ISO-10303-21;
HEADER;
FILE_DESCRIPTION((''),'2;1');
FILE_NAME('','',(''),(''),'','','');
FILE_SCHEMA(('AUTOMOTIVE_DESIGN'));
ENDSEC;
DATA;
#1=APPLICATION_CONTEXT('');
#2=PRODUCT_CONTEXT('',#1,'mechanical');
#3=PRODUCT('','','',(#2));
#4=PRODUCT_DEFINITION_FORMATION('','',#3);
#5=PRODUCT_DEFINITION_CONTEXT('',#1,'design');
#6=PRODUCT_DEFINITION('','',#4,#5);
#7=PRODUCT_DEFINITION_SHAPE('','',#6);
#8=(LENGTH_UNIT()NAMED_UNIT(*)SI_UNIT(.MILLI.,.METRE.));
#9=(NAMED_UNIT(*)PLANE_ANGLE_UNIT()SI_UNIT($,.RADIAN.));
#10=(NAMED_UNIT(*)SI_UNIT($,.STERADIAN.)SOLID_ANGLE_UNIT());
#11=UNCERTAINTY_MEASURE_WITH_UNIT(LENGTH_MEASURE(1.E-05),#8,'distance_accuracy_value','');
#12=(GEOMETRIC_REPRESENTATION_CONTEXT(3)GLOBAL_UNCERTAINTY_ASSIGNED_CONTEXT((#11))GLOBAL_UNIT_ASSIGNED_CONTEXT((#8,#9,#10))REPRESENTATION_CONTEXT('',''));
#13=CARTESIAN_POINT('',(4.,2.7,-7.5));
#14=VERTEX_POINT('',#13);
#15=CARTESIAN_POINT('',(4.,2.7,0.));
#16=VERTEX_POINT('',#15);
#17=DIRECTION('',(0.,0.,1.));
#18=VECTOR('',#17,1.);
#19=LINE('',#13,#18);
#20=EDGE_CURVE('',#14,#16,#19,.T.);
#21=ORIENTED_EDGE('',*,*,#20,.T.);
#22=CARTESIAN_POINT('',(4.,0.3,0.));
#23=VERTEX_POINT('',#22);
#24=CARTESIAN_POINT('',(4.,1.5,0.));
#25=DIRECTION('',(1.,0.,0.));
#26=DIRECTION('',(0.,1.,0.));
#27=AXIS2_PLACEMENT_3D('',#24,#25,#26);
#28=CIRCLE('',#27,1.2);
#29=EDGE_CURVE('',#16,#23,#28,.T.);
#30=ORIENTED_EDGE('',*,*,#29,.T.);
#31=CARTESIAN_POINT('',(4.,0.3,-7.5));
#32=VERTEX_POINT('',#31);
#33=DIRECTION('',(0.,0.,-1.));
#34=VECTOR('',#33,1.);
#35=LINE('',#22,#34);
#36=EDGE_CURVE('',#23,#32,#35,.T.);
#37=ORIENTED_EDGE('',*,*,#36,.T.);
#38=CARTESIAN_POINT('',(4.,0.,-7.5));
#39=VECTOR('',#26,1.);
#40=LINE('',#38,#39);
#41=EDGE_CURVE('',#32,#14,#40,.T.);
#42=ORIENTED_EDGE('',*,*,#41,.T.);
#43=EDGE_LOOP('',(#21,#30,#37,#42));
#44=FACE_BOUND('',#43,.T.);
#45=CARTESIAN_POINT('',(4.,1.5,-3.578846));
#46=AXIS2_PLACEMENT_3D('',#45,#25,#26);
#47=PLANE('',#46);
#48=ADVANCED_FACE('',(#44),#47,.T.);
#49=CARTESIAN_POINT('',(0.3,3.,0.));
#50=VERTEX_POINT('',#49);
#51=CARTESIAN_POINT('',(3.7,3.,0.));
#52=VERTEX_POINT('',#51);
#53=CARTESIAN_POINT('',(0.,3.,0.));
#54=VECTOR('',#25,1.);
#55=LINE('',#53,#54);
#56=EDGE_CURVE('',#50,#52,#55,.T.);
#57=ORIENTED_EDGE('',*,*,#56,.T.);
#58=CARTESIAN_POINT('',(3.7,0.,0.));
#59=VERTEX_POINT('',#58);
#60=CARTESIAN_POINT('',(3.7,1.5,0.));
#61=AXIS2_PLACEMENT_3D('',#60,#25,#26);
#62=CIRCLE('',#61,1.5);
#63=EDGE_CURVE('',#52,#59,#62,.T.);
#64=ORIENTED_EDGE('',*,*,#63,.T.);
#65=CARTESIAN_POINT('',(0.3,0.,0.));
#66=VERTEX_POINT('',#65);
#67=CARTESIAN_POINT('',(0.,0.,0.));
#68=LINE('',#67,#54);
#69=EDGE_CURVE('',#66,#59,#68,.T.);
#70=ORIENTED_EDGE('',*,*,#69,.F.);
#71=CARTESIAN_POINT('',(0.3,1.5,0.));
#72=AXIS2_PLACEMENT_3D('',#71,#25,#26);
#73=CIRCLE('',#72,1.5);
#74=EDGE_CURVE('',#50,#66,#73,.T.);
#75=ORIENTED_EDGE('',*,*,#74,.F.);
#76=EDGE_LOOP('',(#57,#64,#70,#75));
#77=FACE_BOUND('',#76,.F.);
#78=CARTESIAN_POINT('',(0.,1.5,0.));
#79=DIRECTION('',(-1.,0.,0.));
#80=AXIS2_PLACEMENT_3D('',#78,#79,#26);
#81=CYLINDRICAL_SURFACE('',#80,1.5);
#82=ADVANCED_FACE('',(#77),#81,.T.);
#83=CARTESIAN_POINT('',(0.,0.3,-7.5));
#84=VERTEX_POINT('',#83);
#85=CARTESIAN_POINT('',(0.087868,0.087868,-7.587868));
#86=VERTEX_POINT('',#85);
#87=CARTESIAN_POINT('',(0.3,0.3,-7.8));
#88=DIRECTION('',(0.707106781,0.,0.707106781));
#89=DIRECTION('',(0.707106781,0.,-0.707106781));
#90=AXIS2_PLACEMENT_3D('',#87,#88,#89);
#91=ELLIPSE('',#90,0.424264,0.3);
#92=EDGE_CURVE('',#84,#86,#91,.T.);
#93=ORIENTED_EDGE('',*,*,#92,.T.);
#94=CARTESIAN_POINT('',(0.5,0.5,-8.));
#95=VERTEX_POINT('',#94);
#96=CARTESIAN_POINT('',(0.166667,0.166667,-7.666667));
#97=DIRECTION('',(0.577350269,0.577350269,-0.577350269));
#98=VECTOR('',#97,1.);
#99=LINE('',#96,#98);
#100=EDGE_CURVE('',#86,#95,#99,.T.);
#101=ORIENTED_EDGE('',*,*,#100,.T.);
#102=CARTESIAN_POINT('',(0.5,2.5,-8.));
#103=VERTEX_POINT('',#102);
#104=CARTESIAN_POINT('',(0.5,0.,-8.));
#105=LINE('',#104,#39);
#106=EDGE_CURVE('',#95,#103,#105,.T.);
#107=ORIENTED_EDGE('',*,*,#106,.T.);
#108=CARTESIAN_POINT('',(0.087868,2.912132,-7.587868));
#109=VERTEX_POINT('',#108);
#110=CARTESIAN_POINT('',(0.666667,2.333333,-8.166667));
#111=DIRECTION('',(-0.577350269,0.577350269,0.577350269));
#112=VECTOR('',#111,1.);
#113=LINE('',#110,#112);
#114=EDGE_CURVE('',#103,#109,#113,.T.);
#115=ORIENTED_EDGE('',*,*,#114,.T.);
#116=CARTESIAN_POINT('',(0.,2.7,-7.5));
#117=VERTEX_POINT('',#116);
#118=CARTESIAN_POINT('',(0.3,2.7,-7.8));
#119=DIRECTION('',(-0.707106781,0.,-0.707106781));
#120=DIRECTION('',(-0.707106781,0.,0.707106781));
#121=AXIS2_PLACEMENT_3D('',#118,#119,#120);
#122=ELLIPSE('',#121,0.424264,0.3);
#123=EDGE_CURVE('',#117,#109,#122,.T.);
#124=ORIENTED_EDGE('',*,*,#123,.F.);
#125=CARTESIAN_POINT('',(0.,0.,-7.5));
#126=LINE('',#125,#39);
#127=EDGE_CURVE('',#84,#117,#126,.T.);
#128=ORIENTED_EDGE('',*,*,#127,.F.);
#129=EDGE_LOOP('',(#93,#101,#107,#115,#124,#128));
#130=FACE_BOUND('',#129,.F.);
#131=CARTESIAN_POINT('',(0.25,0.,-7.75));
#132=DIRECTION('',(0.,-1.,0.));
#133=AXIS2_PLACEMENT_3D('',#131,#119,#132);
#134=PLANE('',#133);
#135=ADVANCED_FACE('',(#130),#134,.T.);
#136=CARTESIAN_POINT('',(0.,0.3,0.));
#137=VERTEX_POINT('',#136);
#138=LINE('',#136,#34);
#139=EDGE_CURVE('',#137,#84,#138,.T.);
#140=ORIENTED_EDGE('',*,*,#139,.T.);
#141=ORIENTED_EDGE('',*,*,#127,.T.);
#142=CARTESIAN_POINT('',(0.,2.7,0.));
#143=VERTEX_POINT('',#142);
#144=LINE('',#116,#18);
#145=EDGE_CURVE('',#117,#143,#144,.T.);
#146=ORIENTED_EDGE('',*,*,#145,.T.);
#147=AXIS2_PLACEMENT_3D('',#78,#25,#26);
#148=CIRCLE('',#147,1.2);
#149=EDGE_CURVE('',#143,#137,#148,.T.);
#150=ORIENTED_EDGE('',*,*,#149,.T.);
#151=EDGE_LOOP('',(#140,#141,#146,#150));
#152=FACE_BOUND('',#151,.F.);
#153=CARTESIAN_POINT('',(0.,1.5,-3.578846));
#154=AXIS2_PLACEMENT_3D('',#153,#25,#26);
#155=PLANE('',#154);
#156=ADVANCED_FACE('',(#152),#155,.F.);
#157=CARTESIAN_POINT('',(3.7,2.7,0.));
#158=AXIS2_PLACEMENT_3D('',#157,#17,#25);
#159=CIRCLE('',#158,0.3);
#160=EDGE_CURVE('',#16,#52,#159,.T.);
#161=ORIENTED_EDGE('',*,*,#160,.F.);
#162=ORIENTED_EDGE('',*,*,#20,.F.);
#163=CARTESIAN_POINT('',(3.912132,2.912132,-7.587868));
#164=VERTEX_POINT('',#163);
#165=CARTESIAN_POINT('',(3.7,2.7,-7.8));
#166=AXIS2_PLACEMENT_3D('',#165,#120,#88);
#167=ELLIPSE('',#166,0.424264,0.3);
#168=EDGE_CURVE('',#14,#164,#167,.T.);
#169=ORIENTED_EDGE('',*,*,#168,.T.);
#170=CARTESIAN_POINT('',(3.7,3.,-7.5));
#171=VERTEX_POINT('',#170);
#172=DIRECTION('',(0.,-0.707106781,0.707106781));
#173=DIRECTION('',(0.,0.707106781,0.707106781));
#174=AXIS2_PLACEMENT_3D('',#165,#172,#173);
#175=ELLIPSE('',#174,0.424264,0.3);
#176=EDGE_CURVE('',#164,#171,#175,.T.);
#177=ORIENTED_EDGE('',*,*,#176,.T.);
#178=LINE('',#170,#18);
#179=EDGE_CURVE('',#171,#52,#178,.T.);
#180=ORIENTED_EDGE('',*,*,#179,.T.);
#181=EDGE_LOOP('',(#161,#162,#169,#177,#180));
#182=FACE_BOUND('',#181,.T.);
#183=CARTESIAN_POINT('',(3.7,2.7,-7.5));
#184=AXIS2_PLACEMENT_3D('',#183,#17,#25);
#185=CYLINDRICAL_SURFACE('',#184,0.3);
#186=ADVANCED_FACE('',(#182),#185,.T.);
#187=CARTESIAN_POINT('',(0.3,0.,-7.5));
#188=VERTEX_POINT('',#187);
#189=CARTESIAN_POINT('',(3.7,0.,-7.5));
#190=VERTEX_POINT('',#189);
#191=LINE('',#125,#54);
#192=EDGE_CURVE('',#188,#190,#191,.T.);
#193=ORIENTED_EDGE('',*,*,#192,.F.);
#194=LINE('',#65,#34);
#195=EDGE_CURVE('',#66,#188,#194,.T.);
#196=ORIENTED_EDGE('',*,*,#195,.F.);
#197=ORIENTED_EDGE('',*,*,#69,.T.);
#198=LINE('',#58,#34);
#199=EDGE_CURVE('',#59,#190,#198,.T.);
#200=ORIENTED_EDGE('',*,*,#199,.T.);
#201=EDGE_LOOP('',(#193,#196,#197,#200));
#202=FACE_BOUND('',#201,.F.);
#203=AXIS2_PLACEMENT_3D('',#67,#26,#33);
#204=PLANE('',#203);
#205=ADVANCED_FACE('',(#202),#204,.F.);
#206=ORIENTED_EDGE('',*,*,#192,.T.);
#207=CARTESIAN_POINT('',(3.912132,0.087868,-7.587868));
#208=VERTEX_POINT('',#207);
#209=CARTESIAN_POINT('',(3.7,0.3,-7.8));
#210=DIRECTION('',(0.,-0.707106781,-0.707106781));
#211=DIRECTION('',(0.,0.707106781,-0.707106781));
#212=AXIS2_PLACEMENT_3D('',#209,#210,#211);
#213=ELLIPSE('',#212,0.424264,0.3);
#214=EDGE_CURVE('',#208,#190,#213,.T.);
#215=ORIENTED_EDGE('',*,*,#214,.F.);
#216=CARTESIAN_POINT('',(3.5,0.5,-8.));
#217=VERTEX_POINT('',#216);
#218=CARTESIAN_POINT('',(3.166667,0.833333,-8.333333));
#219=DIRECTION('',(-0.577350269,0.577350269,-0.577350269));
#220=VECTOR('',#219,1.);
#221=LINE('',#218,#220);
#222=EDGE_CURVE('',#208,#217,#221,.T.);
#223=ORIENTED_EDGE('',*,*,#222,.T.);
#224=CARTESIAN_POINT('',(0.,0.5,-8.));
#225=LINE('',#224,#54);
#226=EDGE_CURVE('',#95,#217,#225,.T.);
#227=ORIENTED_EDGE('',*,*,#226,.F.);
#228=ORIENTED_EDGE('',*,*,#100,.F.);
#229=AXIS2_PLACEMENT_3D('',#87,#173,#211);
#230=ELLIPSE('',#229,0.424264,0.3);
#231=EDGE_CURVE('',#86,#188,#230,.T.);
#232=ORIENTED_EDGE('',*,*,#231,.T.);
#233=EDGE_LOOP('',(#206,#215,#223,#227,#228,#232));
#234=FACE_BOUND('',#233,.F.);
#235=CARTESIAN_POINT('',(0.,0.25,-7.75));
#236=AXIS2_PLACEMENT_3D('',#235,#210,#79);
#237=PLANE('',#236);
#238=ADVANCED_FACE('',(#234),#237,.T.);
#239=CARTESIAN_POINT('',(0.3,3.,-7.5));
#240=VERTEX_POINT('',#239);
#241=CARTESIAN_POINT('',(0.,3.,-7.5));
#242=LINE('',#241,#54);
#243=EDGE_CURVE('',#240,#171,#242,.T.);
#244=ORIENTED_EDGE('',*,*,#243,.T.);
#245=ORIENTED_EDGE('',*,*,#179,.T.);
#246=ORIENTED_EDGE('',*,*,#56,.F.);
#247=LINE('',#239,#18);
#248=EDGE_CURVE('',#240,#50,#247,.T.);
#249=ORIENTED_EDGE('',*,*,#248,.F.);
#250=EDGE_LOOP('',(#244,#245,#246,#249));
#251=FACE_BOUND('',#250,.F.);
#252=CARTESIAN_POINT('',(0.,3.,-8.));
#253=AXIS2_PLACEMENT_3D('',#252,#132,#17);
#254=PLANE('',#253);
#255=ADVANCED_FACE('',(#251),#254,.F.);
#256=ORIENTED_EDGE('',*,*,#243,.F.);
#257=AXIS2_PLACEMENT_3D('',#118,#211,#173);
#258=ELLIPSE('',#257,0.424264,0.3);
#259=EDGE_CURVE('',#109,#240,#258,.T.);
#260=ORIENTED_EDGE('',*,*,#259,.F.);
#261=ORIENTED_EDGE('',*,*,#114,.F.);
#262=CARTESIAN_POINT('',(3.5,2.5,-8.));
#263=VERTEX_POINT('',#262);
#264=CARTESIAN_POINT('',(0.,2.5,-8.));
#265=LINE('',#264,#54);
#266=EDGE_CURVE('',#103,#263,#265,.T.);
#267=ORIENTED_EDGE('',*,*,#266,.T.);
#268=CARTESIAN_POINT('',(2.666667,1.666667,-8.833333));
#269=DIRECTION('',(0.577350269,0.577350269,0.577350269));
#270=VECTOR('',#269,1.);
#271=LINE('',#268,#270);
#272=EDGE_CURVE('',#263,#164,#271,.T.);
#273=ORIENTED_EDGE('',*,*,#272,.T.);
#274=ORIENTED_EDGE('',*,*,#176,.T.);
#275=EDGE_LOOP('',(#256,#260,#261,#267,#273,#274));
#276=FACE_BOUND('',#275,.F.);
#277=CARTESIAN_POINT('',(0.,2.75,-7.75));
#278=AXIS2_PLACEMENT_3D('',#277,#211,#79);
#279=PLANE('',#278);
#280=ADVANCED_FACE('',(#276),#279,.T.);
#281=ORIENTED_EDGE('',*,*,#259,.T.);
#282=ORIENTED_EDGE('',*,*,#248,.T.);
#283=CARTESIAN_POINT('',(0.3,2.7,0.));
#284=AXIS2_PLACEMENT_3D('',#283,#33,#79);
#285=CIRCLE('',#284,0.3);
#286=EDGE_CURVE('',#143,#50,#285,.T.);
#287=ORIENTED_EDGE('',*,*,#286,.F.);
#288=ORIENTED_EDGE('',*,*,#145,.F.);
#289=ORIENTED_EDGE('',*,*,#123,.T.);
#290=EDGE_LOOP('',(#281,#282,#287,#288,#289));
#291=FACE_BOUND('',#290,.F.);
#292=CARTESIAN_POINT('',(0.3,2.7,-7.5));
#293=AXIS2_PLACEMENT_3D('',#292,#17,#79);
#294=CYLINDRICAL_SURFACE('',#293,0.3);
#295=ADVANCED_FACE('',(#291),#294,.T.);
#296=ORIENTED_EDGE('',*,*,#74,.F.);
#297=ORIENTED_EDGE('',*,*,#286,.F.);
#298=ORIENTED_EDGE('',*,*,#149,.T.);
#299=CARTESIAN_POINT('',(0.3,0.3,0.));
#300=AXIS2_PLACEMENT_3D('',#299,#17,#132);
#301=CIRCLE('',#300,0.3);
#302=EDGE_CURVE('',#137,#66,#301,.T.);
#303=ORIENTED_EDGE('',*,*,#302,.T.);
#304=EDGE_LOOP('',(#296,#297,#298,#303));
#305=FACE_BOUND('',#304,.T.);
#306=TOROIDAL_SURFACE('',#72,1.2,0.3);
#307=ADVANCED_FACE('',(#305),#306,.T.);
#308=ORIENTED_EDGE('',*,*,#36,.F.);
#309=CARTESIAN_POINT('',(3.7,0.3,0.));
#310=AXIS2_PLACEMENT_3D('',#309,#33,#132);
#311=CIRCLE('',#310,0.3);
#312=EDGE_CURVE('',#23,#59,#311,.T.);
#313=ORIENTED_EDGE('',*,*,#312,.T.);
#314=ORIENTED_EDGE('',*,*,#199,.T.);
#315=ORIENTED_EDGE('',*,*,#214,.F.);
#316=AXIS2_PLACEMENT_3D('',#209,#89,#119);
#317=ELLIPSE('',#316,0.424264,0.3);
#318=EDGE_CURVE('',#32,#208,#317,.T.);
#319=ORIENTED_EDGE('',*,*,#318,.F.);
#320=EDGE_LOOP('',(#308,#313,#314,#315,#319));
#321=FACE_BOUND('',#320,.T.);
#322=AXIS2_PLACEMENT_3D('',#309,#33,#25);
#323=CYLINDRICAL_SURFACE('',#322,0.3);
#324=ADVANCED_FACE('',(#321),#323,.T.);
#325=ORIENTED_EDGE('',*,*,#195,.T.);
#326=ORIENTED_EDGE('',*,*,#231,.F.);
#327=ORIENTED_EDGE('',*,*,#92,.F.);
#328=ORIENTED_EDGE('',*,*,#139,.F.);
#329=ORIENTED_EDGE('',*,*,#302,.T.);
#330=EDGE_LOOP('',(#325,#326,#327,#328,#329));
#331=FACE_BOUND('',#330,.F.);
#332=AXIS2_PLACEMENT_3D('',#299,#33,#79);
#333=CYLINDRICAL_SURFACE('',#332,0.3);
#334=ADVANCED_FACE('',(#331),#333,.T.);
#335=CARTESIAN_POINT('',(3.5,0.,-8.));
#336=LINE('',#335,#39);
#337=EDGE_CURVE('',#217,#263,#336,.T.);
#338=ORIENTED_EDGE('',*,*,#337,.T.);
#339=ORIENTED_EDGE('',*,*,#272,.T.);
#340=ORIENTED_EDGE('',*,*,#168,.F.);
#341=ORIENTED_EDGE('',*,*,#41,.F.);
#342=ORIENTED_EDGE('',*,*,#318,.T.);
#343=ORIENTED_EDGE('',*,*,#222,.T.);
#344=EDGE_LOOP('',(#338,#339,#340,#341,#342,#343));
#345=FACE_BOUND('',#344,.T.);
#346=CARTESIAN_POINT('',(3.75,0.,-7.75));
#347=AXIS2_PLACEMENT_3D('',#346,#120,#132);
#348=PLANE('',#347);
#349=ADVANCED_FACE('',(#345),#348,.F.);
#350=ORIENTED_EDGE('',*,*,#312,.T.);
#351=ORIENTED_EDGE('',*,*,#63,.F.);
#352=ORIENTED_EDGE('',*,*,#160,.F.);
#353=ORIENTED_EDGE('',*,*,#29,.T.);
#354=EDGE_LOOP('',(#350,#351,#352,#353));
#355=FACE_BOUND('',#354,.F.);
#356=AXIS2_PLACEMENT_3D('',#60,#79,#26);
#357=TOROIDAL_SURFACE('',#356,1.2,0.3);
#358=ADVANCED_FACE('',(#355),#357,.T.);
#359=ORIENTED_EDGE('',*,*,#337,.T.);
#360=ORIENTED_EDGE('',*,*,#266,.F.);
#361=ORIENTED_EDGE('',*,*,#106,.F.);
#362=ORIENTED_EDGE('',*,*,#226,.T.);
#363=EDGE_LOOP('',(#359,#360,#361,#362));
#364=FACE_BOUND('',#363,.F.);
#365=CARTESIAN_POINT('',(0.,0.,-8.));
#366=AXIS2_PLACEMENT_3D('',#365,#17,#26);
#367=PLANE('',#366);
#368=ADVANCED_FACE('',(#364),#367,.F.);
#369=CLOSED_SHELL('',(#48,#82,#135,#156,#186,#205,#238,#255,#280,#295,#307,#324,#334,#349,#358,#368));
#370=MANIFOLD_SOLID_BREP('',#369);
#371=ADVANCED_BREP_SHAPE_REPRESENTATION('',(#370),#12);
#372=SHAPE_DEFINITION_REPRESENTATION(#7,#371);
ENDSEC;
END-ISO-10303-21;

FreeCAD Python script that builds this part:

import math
import FreeCAD as App
import Part
import Sketcher


def edges_at(feature, points):
    """Names of the edges that pass closest to the given points."""
    edges = feature.Shape.Edges
    near = lambda p: min(range(len(edges)), key=lambda i: edges[i].distToShape(Part.Vertex(*p))[0])
    return sorted({f"Edge{near(p) + 1}" for p in points})

doc = App.newDocument("Part")
body = doc.addObject("PartDesign::Body", "Body")

# Sketch on YZ plane
sketch1 = body.newObject("Sketcher::SketchObject", "Sketch")
sketch1.AttachmentSupport = (doc.getObject("YZ_Plane"), [""])
sketch1.MapMode = "FlatFace"
sketch1.addGeometry([
    Part.LineSegment(App.Vector(0, 0, 0), App.Vector(0, -8, 0)),
    Part.LineSegment(App.Vector(0, -8, 0), App.Vector(3, -8, 0)),
    Part.LineSegment(App.Vector(3, -8, 0), App.Vector(3, 0, 0)),
    Part.ArcOfCircle(Part.Circle(App.Vector(1.5, 0, 0), App.Vector(0, 0, 1), 1.5), math.radians(0), math.radians(180)),
], False)
sketch1.addConstraint([
    Sketcher.Constraint("Coincident", 0, 2, 1, 1),
    Sketcher.Constraint("Coincident", 1, 2, 2, 1),
    Sketcher.Constraint("Tangent", 2, 2, 3, 1),
    Sketcher.Constraint("Tangent", 3, 2, 0, 1),
    Sketcher.Constraint("Vertical", 0),
    Sketcher.Constraint("Horizontal", 1),
    Sketcher.Constraint("Vertical", 2),
    Sketcher.Constraint("Coincident", 3, 2, -1, 1),
    Sketcher.Constraint("Radius", 3, 1.5),
    Sketcher.Constraint("DistanceY", 0, 2, 0, 1, 8.0),
])
pad1 = body.newObject("PartDesign::Pad", "Pad")
pad1.Profile = sketch1
pad1.Length = 4
doc.recompute()

chamfer = body.newObject("PartDesign::Chamfer", "Chamfer")
chamfer.Base = (pad1, edges_at(pad1, [
    (2, 0, -8),
    (2, 3, -8),
    (0, 1.5, -8),
    (4, 1.5, -8),
]))
chamfer.Size = 0.5
doc.recompute()

fillet = body.newObject("PartDesign::Fillet", "Fillet")
fillet.Base = (chamfer, edges_at(chamfer, [
    (0, 3, -3.75),
    (0, 1.5, 1.5),
    (0, 0, -3.75),
    (4, 3, -3.75),
    (4, 1.5, 1.5),
]))
fillet.Radius = 0.3

doc.recompute()
